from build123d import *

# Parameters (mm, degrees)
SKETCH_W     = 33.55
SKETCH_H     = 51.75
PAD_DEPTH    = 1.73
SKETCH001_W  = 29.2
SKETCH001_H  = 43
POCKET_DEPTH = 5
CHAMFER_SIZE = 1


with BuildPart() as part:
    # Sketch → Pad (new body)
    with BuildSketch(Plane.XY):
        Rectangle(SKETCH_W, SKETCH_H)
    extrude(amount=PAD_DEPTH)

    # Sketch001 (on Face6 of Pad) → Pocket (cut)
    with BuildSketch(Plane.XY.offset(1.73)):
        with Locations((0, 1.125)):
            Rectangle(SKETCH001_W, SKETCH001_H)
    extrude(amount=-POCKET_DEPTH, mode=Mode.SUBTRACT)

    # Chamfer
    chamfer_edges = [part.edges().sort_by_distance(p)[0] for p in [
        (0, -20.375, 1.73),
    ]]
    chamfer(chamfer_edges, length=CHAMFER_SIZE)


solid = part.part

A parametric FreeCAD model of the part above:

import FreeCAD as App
import Part
import Sketcher


def edges_at(feature, points):
    """Names of the edges that pass closest to the given points."""
    edges = feature.Shape.Edges
    near = lambda p: min(range(len(edges)), key=lambda i: edges[i].distToShape(Part.Vertex(*p))[0])
    return sorted({f"Edge{near(p) + 1}" for p in points})


def add_polygon(sketch, points):
    """Adds a closed chain of lines whose ends are joined by coincident constraints."""
    first, n = sketch.GeometryCount, len(points)
    for a, b in zip(points, points[1:] + points[:1]):
        sketch.addGeometry(Part.LineSegment(App.Vector(*a, 0), App.Vector(*b, 0)), False)
    for i in range(n):
        sketch.addConstraint(Sketcher.Constraint("Coincident", first + i, 2, first + (i + 1) % n, 1))

doc = App.newDocument("Part")
body = doc.addObject("PartDesign::Body", "Body")

# Sketch on XY plane
sketch1 = doc.addObject("Sketcher::SketchObject", "Sketch")
body.addObject(sketch1)
sketch1.AttachmentSupport = (doc.XY_Plane, [""])
sketch1.MapMode = "FlatFace"
add_polygon(sketch1, [(-17, 26), (-17, -26), (17, -26), (17, 26)])  # lines 0-3
sketch1.addConstraint([
    Sketcher.Constraint("Vertical", 0),
    Sketcher.Constraint("Horizontal", 1),
    Sketcher.Constraint("Vertical", 2),
    Sketcher.Constraint("Horizontal", 3),
    Sketcher.Constraint("Symmetric", 0, 2, 2, 2, -1, 1),
    Sketcher.Constraint("DistanceX", 1, 1, 1, 2, 33.55),
    Sketcher.Constraint("DistanceY", 0, 2, 0, 1, 51.75),
])
pad1 = doc.addObject("PartDesign::Pad", "Pad")
body.addObject(pad1)
pad1.Profile = sketch1
pad1.Length = 1.73

# Sketch on XY plane
sketch2 = doc.addObject("Sketcher::SketchObject", "Sketch001")
body.addObject(sketch2)
sketch2.AttachmentSupport = (doc.XY_Plane, [""])
sketch2.MapMode = "FlatFace"
sketch2.AttachmentOffset = App.Placement(App.Vector(0, 0, 1.73), App.Rotation())
add_polygon(sketch2, [(-15, 23), (-15, -20), (15, -20), (15, 23)])  # lines 0-3
sketch2.addConstraint([
    Sketcher.Constraint("Vertical", 0),
    Sketcher.Constraint("Horizontal", 1),
    Sketcher.Constraint("Vertical", 2),
    Sketcher.Constraint("Horizontal", 3),
    Sketcher.Constraint("DistanceY", 0, 2, 0, 1, 43.0),
    Sketcher.Constraint("DistanceX", 1, 1, 1, 2, 29.2),
    Sketcher.Constraint("DistanceX", 0, 2, -1, 1, 14.6),
    Sketcher.Constraint("DistanceY", 0, 2, -1, 1, 20.375),
])
pocket1 = doc.addObject("PartDesign::Pocket", "Pocket")
body.addObject(pocket1)
pocket1.Profile = sketch2
pocket1.Length = 5
doc.recompute()

chamfer = doc.addObject("PartDesign::Chamfer", "Chamfer")
body.addObject(chamfer)
chamfer.Base = (pocket1, edges_at(pocket1, [(0, -20.375, 1.73)]))
chamfer.Size = 1

doc.recompute()
